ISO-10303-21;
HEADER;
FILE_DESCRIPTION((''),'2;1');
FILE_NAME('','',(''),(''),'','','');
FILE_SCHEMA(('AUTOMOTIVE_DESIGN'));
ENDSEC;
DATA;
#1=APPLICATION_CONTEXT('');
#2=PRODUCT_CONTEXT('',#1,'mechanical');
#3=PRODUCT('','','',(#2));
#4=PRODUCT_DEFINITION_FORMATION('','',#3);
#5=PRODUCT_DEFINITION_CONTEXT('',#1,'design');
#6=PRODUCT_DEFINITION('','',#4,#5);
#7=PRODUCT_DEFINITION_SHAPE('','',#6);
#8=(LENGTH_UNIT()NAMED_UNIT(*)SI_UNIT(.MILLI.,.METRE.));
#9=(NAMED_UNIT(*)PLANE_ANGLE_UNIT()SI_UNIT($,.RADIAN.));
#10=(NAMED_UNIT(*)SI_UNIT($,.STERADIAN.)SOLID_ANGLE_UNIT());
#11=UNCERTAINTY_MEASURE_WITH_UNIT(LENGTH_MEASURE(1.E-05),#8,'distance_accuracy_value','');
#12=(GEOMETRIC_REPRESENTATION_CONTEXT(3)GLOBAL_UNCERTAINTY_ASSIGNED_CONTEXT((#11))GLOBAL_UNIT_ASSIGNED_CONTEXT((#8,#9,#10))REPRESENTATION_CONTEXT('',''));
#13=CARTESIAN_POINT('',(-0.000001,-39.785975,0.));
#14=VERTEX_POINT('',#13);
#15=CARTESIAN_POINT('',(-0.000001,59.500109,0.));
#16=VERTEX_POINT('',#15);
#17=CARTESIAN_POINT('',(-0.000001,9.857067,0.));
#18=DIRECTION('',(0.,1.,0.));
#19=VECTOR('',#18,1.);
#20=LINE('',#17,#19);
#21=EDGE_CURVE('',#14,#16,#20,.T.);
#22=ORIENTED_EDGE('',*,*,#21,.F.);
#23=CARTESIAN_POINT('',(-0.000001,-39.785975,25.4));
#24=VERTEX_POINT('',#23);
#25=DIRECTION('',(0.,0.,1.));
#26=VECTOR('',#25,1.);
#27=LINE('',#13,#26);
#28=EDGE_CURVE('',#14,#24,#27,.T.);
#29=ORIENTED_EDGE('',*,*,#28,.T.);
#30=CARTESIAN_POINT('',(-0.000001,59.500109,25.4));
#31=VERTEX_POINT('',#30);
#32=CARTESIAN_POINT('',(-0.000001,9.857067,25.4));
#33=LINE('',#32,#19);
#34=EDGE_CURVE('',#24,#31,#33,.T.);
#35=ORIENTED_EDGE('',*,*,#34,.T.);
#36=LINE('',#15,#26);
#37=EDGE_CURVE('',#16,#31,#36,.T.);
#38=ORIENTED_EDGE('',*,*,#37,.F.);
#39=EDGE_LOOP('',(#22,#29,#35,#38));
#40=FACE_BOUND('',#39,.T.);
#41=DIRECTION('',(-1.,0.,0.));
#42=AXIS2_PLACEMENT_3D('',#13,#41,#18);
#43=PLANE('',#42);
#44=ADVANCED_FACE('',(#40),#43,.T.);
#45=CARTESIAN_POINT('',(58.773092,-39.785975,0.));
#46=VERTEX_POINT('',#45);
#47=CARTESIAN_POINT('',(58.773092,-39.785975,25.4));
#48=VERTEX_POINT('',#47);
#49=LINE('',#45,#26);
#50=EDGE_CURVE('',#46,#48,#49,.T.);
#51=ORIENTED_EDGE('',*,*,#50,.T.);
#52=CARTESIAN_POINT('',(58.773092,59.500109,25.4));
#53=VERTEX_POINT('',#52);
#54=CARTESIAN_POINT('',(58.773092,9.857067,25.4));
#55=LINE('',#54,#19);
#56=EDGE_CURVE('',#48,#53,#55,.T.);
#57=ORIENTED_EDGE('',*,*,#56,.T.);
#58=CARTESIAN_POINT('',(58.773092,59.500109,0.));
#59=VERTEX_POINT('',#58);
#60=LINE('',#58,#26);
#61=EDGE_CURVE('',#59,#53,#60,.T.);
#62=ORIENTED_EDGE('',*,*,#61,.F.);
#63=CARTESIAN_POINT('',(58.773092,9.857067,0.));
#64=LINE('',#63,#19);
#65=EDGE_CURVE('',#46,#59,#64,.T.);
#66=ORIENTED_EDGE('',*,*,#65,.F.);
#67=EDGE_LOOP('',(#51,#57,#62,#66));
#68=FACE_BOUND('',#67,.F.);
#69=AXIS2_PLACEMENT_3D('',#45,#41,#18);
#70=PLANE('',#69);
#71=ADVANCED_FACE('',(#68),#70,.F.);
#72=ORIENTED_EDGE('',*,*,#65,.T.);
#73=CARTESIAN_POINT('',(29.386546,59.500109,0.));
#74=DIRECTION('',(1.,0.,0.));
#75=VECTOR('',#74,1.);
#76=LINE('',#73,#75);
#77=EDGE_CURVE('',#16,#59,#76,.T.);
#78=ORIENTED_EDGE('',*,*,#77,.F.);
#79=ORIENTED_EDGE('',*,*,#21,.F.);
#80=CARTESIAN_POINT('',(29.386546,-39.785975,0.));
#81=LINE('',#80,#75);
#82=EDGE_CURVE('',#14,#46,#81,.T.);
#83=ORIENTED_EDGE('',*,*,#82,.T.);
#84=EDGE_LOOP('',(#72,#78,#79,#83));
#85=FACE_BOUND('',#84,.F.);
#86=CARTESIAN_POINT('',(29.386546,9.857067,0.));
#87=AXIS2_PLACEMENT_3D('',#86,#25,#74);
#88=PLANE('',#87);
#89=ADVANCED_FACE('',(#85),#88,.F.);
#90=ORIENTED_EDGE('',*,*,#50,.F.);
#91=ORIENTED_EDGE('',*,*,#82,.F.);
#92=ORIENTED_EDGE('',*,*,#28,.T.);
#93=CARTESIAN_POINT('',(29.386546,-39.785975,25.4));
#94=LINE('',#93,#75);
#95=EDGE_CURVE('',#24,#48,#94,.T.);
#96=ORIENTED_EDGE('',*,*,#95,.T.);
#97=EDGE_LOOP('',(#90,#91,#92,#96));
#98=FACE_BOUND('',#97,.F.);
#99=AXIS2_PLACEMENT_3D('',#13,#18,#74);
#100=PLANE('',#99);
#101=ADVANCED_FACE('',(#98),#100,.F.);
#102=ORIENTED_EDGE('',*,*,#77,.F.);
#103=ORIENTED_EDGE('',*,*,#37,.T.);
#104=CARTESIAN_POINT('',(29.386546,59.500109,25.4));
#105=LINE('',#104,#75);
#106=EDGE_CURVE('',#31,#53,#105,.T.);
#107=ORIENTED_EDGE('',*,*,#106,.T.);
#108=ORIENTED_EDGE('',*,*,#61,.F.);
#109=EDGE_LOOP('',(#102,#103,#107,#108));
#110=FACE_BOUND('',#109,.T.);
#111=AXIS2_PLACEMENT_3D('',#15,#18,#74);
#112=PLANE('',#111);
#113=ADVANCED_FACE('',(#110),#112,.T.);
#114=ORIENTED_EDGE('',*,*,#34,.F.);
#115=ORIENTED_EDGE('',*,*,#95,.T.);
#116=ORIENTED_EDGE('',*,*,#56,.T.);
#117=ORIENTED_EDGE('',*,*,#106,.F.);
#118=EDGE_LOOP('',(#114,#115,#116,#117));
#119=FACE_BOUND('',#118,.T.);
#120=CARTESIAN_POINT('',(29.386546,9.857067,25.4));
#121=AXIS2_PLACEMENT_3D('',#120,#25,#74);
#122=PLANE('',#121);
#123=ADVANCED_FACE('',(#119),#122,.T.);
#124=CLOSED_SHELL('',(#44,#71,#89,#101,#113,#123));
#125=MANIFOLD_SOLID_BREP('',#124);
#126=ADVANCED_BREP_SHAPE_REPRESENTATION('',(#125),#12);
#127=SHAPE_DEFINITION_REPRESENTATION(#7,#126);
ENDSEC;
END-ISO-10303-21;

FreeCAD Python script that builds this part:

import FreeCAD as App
import Part
import Sketcher
Q = App.Units.Quantity


def add_polygon(sketch, points):
    """Adds a closed chain of lines whose ends are joined by coincident constraints."""
    first, n = sketch.GeometryCount, len(points)
    for a, b in zip(points, points[1:] + points[:1]):
        sketch.addGeometry(Part.LineSegment(App.Vector(*a, 0), App.Vector(*b, 0)), False)
    for i in range(n):
        sketch.addConstraint(Sketcher.Constraint("Coincident", first + i, 2, first + (i + 1) % n, 1))

doc = App.newDocument("Part")
params = doc.addObject("Spreadsheet::Sheet", "Params")
for row, (alias, value) in enumerate([
    ("pad1_length", "1 in"),
    ("pocket1_length", "5 in"),
    ("pocket2_length", "1 in"),
], start=1):
    params.set(f"A{row}", alias)
    params.set(f"B{row}", "=" + value)
    params.setAlias(f"B{row}", alias)

body = doc.addObject("PartDesign::Body", "Body")

sketch1 = body.newObject("Sketcher::SketchObject", "Sketch")
sketch1.AttachmentSupport = (doc.getObject("XY_Plane"), [""])
sketch1.MapMode = "FlatFace"
add_polygon(sketch1, [(0, 60), (0, -40), (59, -40), (59, 60)])
sketch1.addConstraint([
    Sketcher.Constraint("Vertical", 0),
    Sketcher.Constraint("Horizontal", 1),
    Sketcher.Constraint("Vertical", 2),
    Sketcher.Constraint("Horizontal", 3),
    Sketcher.Constraint("PointOnObject", 0, 2, -2),
    Sketcher.Constraint("DistanceX", 1, 1, 1, 2, Q("58.773093 mm")),
    Sketcher.Constraint("DistanceY", 0, 2, 0, 1, Q("99.286083 mm")),
    Sketcher.Constraint("DistanceY", -1, 1, 2, 2, Q("59.500109 mm")),
])
pad1 = body.newObject("PartDesign::Pad", "Pad")
pad1.Profile = sketch1
pad1.setExpression("Length", "Params.pad1_length")

sketch2 = body.newObject("Sketcher::SketchObject", "Sketch001")
sketch2.AttachmentSupport = (doc.getObject("XY_Plane"), [""])
sketch2.MapMode = "FlatFace"
add_polygon(sketch2, [(5, 52), (5, -29), (47, -29), (47, 52)])
sketch2.addConstraint([
    Sketcher.Constraint("Vertical", 0),
    Sketcher.Constraint("Horizontal", 1),
    Sketcher.Constraint("Vertical", 2),
    Sketcher.Constraint("Horizontal", 3),
    Sketcher.Constraint("DistanceY", 0, 2, 0, 1, Q("81.185479 mm")),
    Sketcher.Constraint("DistanceX", 1, 1, 1, 2, Q("42.263355 mm")),
    Sketcher.Constraint("DistanceX", -1, 1, 1, 2, Q("47.05081 mm")),
    Sketcher.Constraint("DistanceY", 0, 2, -1, 1, Q("29.298126 mm")),
])
pocket1 = body.newObject("PartDesign::Pocket", "Pocket")
pocket1.Profile = sketch2
pocket1.setExpression("Length", "Params.pocket1_length")

sketch3 = body.newObject("Sketcher::SketchObject", "Sketch002")
sketch3.AttachmentSupport = (doc.getObject("XY_Plane"), [""])
sketch3.MapMode = "FlatFace"
add_polygon(sketch3, [(0, 60), (0, -40), (59, -40), (59, 60)])
sketch3.addConstraint([
    Sketcher.Constraint("Vertical", 0),
    Sketcher.Constraint("Horizontal", 1),
    Sketcher.Constraint("Vertical", 2),
    Sketcher.Constraint("Horizontal", 3),
    Sketcher.Constraint("PointOnObject", 0, 2, -2),
    Sketcher.Constraint("DistanceX", 1, 1, 1, 2, Q("58.773093 mm")),
    Sketcher.Constraint("DistanceY", 0, 2, 0, 1, Q("99.286083 mm")),
    Sketcher.Constraint("DistanceY", -1, 1, 2, 2, Q("59.500109 mm")),
])
pocket2 = body.newObject("PartDesign::Pocket", "Pocket001")
pocket2.Profile = sketch3
pocket2.setExpression("Length", "Params.pocket2_length")

doc.recompute()
